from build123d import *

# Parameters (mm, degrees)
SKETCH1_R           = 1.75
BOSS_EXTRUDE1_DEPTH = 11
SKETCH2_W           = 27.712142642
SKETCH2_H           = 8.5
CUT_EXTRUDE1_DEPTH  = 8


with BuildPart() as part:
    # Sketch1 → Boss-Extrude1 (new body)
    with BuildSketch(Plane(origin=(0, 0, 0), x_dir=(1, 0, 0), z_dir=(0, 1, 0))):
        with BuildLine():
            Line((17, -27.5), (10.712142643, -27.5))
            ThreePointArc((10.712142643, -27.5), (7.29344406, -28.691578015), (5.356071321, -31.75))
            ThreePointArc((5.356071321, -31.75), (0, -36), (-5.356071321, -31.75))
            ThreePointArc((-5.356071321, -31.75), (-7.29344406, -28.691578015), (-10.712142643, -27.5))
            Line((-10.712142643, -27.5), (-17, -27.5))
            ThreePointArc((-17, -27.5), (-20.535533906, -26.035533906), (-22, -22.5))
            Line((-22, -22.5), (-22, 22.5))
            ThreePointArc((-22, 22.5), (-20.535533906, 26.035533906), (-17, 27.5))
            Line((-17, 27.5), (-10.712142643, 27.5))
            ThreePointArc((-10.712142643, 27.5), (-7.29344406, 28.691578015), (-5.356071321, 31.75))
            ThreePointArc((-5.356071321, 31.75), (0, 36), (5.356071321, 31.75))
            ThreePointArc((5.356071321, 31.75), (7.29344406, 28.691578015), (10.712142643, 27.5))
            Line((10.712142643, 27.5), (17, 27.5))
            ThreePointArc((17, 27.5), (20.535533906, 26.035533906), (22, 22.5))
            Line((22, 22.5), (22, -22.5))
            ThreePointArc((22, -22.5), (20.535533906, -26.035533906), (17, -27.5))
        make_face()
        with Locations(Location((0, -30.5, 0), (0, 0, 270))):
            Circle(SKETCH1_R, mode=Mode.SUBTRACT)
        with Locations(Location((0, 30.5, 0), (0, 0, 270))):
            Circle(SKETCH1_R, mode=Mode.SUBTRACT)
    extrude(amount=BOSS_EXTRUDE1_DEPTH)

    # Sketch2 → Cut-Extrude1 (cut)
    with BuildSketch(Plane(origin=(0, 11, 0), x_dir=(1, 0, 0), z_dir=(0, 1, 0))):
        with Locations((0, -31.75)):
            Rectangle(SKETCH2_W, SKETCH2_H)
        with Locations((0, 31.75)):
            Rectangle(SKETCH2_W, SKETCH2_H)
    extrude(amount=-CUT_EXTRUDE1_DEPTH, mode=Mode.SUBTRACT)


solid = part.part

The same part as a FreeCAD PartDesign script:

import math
import FreeCAD as App
import Part
import Sketcher

V = App.Vector

doc = App.newDocument("Part")
body = doc.addObject("PartDesign::Body", "Body")

# Sketch on XZ plane
sketch1 = body.newObject("Sketcher::SketchObject", "Sketch")
sketch1.AttachmentSupport = (doc.getObject("XZ_Plane"), [""])
sketch1.MapMode = "FlatFace"
sketch1.addGeometry([
    Part.LineSegment(V(10.712143, 27.5, 0), V(17, 27.5, 0)),  # 0
    Part.ArcOfCircle(Part.Circle(V(17, 22.5, 0), V(0, 0, 1), 5), math.radians(0), math.radians(90)),  # 1
    Part.LineSegment(V(22, 22.5, 0), V(22, -22.5, 0)),  # 2
    Part.ArcOfCircle(Part.Circle(V(17, -22.5, 0), V(0, 0, 1), 5), math.radians(-90), math.radians(0)),  # 3
    Part.LineSegment(V(17, -27.5, 0), V(10.712143, -27.5, 0)),  # 4
    Part.ArcOfCircle(Part.Circle(V(10.712143, -33, 0), V(0, 0, 1), 5.5), math.radians(90), math.radians(166.863441)),  # 5
    Part.ArcOfCircle(Part.Circle(V(0, -30.5, 0), V(0, 0, 1), 5.5), math.radians(-166.863441), math.radians(-13.136559)),  # 6
    Part.ArcOfCircle(Part.Circle(V(-10.712143, -33, 0), V(0, 0, 1), 5.5), math.radians(13.136559), math.radians(90)),  # 7
    Part.LineSegment(V(-10.712143, -27.5, 0), V(-17, -27.5, 0)),  # 8
    Part.ArcOfCircle(Part.Circle(V(-17, -22.5, 0), V(0, 0, 1), 5), math.radians(180), math.radians(270)),  # 9
    Part.LineSegment(V(-22, -22.5, 0), V(-22, 22.5, 0)),  # 10
    Part.ArcOfCircle(Part.Circle(V(-17, 22.5, 0), V(0, 0, 1), 5), math.radians(90), math.radians(180)),  # 11
    Part.LineSegment(V(-17, 27.5, 0), V(-10.712143, 27.5, 0)),  # 12
    Part.ArcOfCircle(Part.Circle(V(-10.712143, 33, 0), V(0, 0, 1), 5.5), math.radians(-90), math.radians(-13.136559)),  # 13
    Part.ArcOfCircle(Part.Circle(V(0, 30.5, 0), V(0, 0, 1), 5.5), math.radians(13.136559), math.radians(166.863441)),  # 14
    Part.ArcOfCircle(Part.Circle(V(10.712143, 33, 0), V(0, 0, 1), 5.5), math.radians(-166.863441), math.radians(-90)),  # 15
    Part.Circle(V(0, 30.5, 0), V(0, 0, 1), 1.75),  # 16
    Part.Circle(V(0, -30.5, 0), V(0, 0, 1), 1.75),  # 17
], False)
sketch1.addConstraint([
    Sketcher.Constraint("Tangent", 0, 2, 1, 2),
    Sketcher.Constraint("Tangent", 1, 1, 2, 1),
    Sketcher.Constraint("Tangent", 2, 2, 3, 2),
    Sketcher.Constraint("Tangent", 3, 1, 4, 1),
    Sketcher.Constraint("Tangent", 4, 2, 5, 1),
    Sketcher.Constraint("Tangent", 5, 2, 6, 2),
    Sketcher.Constraint("Tangent", 6, 1, 7, 1),
    Sketcher.Constraint("Tangent", 7, 2, 8, 1),
    Sketcher.Constraint("Tangent", 8, 2, 9, 2),
    Sketcher.Constraint("Tangent", 9, 1, 10, 1),
    Sketcher.Constraint("Tangent", 10, 2, 11, 2),
    Sketcher.Constraint("Tangent", 11, 1, 12, 1),
    Sketcher.Constraint("Tangent", 12, 2, 13, 1),
    Sketcher.Constraint("Tangent", 13, 2, 14, 2),
    Sketcher.Constraint("Tangent", 14, 1, 15, 1),
    Sketcher.Constraint("Tangent", 15, 2, 0, 1),
    Sketcher.Constraint("Horizontal", 0),
    Sketcher.Constraint("Vertical", 2),
    Sketcher.Constraint("Horizontal", 4),
    Sketcher.Constraint("Horizontal", 8),
    Sketcher.Constraint("Vertical", 10),
    Sketcher.Constraint("Horizontal", 12),
    Sketcher.Constraint("Coincident", 16, 3, 14, 3),
    Sketcher.Constraint("Coincident", 17, 3, 6, 3),
    Sketcher.Constraint("Equal", 1, 3),
    Sketcher.Constraint("Equal", 5, 6),
    Sketcher.Constraint("Equal", 6, 7),
    Sketcher.Constraint("Equal", 3, 9),
    Sketcher.Constraint("Equal", 9, 11),
    Sketcher.Constraint("Equal", 7, 13),
    Sketcher.Constraint("Equal", 13, 14),
    Sketcher.Constraint("Equal", 14, 15),
    Sketcher.Constraint("Equal", 16, 17),
    Sketcher.Constraint("Symmetric", 1, 3, 9, 3, -1, 1),
    Sketcher.Constraint("Symmetric", 5, 3, 13, 3, -1, 1),
    Sketcher.Constraint("Symmetric", 5, 3, 7, 3, -2),
    Sketcher.Constraint("PointOnObject", 14, 3, -2),
    Sketcher.Constraint("Radius", 1, 5.0),
    Sketcher.Constraint("Diameter", 16, 3.5),
    Sketcher.Constraint("Radius", 5, 5.5),
    Sketcher.Constraint("DistanceY", 2, 2, 2, 1, 45.0),
    Sketcher.Constraint("DistanceX", -1, 1, 1, 3, 17.0),
    Sketcher.Constraint("DistanceY", 6, 3, 3, 3, 8.0),
])
pad1 = body.newObject("PartDesign::Pad", "Pad")
pad1.Profile = sketch1
pad1.Length = 11
pad1.Reversed = True

# Sketch on XZ plane
sketch2 = body.newObject("Sketcher::SketchObject", "Sketch001")
sketch2.AttachmentSupport = (doc.getObject("XZ_Plane"), [""])
sketch2.MapMode = "FlatFace"
sketch2.AttachmentOffset = App.Placement(V(0, 0, -11), App.Rotation())
sketch2.addGeometry([
    Part.LineSegment(V(-13.856071, 27.5, 0), V(-13.856071, 36, 0)),  # 0
    Part.LineSegment(V(-13.856071, 36, 0), V(13.856071, 36, 0)),  # 1
    Part.LineSegment(V(13.856071, 36, 0), V(13.856071, 27.5, 0)),  # 2
    Part.LineSegment(V(13.856071, 27.5, 0), V(-13.856071, 27.5, 0)),  # 3
    Part.LineSegment(V(-13.856071, -36, 0), V(-13.856071, -27.5, 0)),  # 4
    Part.LineSegment(V(-13.856071, -27.5, 0), V(13.856071, -27.5, 0)),  # 5
    Part.LineSegment(V(13.856071, -27.5, 0), V(13.856071, -36, 0)),  # 6
    Part.LineSegment(V(13.856071, -36, 0), V(-13.856071, -36, 0)),  # 7
], False)
sketch2.addConstraint([
    Sketcher.Constraint("Coincident", 0, 2, 1, 1),
    Sketcher.Constraint("Coincident", 1, 2, 2, 1),
    Sketcher.Constraint("Coincident", 2, 2, 3, 1),
    Sketcher.Constraint("Coincident", 3, 2, 0, 1),
    Sketcher.Constraint("Coincident", 4, 2, 5, 1),
    Sketcher.Constraint("Coincident", 5, 2, 6, 1),
    Sketcher.Constraint("Coincident", 6, 2, 7, 1),
    Sketcher.Constraint("Coincident", 7, 2, 4, 1),
    Sketcher.Constraint("Vertical", 0),
    Sketcher.Constraint("Horizontal", 1),
    Sketcher.Constraint("Vertical", 2),
    Sketcher.Constraint("Horizontal", 3),
    Sketcher.Constraint("Vertical", 4),
    Sketcher.Constraint("Horizontal", 5),
    Sketcher.Constraint("Vertical", 6),
    Sketcher.Constraint("Horizontal", 7),
    Sketcher.Constraint("Symmetric", 2, 2, 4, 2, -1, 1),
    Sketcher.Constraint("Symmetric", 0, 2, 6, 2, -1, 1),
    Sketcher.Constraint("Vertical", 3, 2, 4, 2),
    Sketcher.Constraint("DistanceY", 0, 1, 0, 2, 8.5),
    Sketcher.Constraint("DistanceY", -1, 1, 0, 2, 36.0),
    Sketcher.Constraint("DistanceX", 1, 1, 1, 2, 27.712143),
])
pocket1 = body.newObject("PartDesign::Pocket", "Pocket")
pocket1.Profile = sketch2
pocket1.Length = 8
pocket1.Reversed = True

doc.recompute()
